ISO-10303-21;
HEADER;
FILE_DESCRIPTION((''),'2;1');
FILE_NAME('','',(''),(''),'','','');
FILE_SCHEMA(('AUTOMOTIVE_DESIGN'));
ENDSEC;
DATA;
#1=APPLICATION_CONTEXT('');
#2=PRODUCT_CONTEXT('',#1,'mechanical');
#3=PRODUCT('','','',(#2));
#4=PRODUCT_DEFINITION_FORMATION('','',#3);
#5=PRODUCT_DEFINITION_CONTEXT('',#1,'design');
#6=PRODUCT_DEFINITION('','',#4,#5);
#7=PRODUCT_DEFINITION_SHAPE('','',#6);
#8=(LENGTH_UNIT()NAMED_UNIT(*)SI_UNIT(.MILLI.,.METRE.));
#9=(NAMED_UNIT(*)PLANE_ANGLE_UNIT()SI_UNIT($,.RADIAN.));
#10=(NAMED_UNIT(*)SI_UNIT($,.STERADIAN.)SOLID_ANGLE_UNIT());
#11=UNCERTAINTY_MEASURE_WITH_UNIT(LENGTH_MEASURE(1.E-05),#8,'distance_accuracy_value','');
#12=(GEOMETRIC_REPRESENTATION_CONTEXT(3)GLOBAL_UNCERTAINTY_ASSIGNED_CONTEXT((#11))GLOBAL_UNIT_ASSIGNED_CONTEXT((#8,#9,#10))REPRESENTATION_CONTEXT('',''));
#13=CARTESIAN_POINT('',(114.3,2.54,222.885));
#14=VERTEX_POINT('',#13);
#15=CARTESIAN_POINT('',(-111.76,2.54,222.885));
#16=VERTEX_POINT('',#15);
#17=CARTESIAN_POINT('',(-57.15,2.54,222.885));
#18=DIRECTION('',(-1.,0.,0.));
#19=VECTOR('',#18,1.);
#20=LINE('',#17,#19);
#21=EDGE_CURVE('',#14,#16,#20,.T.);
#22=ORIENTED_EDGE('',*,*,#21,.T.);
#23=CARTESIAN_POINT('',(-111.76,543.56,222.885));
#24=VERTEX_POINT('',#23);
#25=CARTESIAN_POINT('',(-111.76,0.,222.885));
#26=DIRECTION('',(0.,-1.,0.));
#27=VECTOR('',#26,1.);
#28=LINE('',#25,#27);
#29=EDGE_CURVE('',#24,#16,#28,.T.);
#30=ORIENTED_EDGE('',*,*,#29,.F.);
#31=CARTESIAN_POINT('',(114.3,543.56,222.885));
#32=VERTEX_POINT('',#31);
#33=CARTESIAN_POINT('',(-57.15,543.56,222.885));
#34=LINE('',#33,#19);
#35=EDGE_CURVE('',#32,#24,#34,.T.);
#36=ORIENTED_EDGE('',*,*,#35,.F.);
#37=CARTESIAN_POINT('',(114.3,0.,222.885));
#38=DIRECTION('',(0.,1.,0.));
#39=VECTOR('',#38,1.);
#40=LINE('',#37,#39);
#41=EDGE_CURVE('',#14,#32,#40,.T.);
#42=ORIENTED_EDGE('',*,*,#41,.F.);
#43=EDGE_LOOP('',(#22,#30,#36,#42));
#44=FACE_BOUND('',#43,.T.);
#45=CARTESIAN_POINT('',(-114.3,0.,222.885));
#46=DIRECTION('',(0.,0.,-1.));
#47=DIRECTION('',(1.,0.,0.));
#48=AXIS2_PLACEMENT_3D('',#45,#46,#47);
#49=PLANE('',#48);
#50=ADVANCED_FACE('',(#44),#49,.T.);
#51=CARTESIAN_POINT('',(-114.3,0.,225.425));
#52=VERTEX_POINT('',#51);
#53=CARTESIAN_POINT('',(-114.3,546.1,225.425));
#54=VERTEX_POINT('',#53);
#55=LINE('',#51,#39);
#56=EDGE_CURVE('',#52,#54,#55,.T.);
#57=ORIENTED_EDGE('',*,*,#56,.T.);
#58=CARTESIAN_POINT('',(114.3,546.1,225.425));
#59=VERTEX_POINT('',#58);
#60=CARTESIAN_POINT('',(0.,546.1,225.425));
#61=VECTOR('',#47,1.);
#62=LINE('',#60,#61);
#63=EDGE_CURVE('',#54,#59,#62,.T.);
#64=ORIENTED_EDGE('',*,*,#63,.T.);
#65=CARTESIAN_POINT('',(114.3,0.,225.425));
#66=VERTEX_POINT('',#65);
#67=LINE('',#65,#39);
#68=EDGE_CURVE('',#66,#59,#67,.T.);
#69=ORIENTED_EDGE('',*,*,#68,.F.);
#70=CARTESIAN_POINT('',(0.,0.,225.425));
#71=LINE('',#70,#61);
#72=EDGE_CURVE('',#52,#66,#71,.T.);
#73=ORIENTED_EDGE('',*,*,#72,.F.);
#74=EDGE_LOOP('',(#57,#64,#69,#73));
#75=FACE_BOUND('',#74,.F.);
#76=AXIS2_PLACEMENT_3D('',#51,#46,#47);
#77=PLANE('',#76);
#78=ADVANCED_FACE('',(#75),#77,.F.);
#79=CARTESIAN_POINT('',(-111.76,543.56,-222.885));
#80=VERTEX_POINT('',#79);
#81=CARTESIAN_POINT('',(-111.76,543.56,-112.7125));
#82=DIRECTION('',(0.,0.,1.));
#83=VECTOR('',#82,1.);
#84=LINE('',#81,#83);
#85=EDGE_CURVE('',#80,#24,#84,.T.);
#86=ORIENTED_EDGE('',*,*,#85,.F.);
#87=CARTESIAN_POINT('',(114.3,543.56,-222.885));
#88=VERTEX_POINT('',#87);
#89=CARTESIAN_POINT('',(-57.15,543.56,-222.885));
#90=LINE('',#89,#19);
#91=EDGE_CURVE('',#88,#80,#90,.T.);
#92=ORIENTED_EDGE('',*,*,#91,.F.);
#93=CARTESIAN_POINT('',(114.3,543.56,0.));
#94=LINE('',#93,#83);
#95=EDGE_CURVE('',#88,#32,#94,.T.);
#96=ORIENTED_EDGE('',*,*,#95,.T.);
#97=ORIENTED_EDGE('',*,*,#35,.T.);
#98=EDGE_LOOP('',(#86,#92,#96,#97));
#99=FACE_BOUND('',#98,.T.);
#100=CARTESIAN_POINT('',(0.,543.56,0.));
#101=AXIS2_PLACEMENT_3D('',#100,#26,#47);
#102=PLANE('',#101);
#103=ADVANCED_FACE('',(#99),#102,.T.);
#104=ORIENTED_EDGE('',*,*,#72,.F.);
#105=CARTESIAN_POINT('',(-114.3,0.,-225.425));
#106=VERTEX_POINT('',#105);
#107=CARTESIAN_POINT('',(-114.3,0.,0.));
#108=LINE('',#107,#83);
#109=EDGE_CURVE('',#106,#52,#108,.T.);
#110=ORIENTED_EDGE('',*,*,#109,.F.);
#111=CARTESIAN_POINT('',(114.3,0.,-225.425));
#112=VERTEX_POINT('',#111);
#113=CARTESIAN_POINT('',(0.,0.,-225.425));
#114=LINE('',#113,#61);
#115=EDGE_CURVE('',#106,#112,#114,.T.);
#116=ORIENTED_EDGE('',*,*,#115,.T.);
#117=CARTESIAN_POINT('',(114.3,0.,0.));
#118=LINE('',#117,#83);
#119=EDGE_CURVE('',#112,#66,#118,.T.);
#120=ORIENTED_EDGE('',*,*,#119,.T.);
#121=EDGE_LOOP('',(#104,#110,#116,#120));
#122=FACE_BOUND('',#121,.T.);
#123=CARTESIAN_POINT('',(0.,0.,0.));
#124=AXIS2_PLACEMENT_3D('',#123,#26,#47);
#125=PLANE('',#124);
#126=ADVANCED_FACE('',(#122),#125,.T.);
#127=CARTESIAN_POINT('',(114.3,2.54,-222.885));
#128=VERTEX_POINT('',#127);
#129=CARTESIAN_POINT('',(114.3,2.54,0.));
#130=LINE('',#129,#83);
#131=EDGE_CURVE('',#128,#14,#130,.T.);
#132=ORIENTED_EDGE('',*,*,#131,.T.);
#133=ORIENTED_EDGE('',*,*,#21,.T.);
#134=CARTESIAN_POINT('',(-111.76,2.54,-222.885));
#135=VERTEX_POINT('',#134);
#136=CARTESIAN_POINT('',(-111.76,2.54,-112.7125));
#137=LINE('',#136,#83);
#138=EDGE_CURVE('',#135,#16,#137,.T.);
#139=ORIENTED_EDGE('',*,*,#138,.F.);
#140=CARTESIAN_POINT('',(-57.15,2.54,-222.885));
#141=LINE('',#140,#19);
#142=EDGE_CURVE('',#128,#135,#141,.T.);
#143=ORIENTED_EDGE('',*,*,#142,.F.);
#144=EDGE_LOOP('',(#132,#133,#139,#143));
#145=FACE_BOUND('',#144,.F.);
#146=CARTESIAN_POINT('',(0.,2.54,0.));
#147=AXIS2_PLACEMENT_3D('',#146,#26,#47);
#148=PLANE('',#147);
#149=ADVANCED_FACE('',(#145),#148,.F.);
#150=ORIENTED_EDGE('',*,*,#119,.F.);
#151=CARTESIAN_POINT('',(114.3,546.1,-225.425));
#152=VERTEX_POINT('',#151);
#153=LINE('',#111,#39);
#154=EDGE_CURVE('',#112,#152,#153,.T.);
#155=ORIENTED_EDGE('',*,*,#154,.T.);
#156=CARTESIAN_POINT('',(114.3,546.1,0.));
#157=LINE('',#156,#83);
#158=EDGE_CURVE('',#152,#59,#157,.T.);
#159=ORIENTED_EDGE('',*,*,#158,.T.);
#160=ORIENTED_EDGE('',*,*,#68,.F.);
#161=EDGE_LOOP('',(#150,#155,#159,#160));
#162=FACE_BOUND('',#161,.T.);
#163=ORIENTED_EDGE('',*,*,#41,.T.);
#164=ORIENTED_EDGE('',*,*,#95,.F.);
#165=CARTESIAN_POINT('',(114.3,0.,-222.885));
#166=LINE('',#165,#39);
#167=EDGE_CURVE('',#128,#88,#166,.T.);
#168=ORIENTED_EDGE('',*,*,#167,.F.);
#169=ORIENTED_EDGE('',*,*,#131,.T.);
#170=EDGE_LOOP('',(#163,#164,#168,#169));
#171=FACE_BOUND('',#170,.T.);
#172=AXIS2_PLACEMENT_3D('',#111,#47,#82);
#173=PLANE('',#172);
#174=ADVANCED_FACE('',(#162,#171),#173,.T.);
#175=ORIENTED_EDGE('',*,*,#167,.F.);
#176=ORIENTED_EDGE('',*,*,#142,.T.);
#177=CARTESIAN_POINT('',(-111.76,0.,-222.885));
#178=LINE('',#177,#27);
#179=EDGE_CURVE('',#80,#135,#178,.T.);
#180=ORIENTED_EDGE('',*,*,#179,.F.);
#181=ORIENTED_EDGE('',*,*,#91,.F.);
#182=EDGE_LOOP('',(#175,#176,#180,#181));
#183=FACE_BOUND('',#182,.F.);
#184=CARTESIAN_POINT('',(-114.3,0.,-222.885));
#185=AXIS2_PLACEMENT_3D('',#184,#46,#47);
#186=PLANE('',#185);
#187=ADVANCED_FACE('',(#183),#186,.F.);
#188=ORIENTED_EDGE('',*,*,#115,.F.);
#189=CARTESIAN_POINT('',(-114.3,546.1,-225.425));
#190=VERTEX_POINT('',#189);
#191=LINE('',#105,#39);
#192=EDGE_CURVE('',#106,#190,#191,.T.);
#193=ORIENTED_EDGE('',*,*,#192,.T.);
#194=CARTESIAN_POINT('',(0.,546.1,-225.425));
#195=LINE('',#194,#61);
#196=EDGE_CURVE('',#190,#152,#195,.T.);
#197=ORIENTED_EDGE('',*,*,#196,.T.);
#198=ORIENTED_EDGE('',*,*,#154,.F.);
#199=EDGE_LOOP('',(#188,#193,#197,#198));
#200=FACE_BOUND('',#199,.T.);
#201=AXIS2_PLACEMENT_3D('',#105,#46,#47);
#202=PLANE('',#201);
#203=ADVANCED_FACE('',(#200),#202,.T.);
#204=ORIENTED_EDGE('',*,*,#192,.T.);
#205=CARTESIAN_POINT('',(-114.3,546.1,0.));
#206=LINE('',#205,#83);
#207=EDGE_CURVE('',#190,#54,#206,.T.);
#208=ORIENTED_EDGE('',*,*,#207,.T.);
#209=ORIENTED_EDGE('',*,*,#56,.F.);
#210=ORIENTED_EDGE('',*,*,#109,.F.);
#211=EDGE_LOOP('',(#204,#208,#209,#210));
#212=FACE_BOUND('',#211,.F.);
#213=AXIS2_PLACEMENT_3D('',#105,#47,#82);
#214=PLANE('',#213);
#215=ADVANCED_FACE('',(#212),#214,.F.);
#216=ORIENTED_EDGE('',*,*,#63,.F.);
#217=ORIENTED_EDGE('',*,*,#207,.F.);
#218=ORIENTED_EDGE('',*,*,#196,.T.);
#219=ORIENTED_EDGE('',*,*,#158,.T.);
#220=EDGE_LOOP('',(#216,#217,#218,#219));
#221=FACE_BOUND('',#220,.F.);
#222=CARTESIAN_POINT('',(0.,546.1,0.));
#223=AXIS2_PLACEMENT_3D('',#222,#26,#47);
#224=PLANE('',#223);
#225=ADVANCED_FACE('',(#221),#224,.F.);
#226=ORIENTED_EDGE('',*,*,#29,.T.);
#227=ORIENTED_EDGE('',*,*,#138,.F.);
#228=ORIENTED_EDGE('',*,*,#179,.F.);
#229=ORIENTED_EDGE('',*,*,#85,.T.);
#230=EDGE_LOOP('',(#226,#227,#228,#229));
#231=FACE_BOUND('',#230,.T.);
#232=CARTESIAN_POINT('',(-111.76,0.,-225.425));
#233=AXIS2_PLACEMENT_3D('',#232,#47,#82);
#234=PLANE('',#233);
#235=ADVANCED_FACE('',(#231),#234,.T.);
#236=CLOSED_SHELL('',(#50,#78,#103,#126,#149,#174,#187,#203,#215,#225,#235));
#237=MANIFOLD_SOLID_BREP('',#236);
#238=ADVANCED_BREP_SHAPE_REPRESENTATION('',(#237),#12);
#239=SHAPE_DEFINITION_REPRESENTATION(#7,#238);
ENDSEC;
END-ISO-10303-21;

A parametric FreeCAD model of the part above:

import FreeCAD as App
import Part
import Sketcher
Q = App.Units.Quantity


def faces_at(feature, points):
    """Names of the faces that lie closest to the given points."""
    faces = feature.Shape.Faces
    near = lambda p: min(range(len(faces)), key=lambda i: faces[i].distToShape(Part.Vertex(*p))[0])
    return sorted({f"Face{near(p) + 1}" for p in points})


def add_polygon(sketch, points):
    """Adds a closed chain of lines whose ends are joined by coincident constraints."""
    first, n = sketch.GeometryCount, len(points)
    for a, b in zip(points, points[1:] + points[:1]):
        sketch.addGeometry(Part.LineSegment(App.Vector(*a, 0), App.Vector(*b, 0)), False)
    for i in range(n):
        sketch.addConstraint(Sketcher.Constraint("Coincident", first + i, 2, first + (i + 1) % n, 1))

doc = App.newDocument("Part")
body = doc.addObject("PartDesign::Body", "Body")

# Sketch on XZ plane
sketch1 = body.newObject("Sketcher::SketchObject", "Sketch")
sketch1.AttachmentSupport = (doc.getObject("XZ_Plane"), [""])
sketch1.MapMode = "FlatFace"
add_polygon(sketch1, [(-114.3, 225.425), (-114.3, -225.425), (114.3, -225.425), (114.3, 225.425)])  # lines 0-3
sketch1.addConstraint([
    Sketcher.Constraint("Vertical", 0),
    Sketcher.Constraint("Horizontal", 1),
    Sketcher.Constraint("Vertical", 2),
    Sketcher.Constraint("Horizontal", 3),
    Sketcher.Constraint("Symmetric", 0, 2, 2, 2, -1, 1),
    Sketcher.Constraint("DistanceX", 1, 1, 1, 2, Q("9 in")),
    Sketcher.Constraint("DistanceY", 0, 2, 0, 1, Q("17.75 in")),
])
pad1 = body.newObject("PartDesign::Pad", "Pad")
pad1.Profile = sketch1
pad1.Length = Q("21.5 in")
pad1.Reversed = True
doc.recompute()

thickness = body.newObject("PartDesign::Thickness", "Thickness")
thickness.Base = (pad1, faces_at(pad1, [(114.3, 273.05, 0)]))
thickness.Value = Q("0.1 in")
thickness.Reversed = True
thickness.Join = "Arc"

doc.recompute()
